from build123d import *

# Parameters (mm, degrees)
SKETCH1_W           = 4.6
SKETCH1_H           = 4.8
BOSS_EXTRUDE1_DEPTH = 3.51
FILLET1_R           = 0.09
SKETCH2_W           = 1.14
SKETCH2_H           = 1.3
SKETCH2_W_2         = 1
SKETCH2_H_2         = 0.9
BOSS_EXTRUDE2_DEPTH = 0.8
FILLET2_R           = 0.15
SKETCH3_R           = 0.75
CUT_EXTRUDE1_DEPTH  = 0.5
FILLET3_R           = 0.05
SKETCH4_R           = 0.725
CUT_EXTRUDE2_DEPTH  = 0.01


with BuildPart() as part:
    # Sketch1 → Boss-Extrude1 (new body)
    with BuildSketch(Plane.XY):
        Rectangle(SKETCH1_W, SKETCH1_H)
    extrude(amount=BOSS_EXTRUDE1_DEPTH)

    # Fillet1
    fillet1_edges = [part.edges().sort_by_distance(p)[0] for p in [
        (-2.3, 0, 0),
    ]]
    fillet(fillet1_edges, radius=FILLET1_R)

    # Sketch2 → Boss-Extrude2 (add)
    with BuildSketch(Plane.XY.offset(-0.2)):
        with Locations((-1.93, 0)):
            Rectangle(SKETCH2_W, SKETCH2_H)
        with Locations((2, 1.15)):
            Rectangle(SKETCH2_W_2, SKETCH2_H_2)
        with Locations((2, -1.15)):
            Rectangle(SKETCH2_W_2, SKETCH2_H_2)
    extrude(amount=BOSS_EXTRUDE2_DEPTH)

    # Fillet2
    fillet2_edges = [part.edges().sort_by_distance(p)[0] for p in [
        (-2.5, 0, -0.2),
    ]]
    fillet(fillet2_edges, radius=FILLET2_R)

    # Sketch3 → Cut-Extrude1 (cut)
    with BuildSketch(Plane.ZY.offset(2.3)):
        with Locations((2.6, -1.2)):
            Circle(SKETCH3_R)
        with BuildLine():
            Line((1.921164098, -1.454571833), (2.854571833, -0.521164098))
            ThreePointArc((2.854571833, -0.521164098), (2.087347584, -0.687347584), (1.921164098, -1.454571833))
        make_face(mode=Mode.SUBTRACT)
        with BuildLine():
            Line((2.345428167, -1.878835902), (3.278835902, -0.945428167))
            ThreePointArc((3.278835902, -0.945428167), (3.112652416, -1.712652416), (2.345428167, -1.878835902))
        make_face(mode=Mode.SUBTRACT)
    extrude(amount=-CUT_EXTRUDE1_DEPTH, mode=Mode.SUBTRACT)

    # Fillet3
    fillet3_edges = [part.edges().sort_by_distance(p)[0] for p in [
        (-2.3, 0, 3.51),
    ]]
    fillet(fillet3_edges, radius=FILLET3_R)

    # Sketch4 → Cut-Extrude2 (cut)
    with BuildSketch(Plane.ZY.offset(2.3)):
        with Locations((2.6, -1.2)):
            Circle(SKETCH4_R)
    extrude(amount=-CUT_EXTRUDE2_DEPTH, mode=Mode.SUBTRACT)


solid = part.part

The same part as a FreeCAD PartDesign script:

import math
import FreeCAD as App
import Part
import Sketcher
from FreeCAD import Vector
Q = App.Units.Quantity


def edges_at(feature, points):
    """Names of the edges that pass closest to the given points."""
    edges = feature.Shape.Edges
    near = lambda p: min(range(len(edges)), key=lambda i: edges[i].distToShape(Part.Vertex(*p))[0])
    return sorted({f"Edge{near(p) + 1}" for p in points})


def add_polygon(sketch, points):
    """Adds a closed chain of lines whose ends are joined by coincident constraints."""
    first, n = sketch.GeometryCount, len(points)
    for a, b in zip(points, points[1:] + points[:1]):
        sketch.addGeometry(Part.LineSegment(App.Vector(*a, 0), App.Vector(*b, 0)), False)
    for i in range(n):
        sketch.addConstraint(Sketcher.Constraint("Coincident", first + i, 2, first + (i + 1) % n, 1))

doc = App.newDocument("Part")
body = doc.addObject("PartDesign::Body", "Body")

# Sketch on XY plane
sketch1 = body.newObject("Sketcher::SketchObject", "Sketch")
sketch1.AttachmentSupport = (doc.getObject("XY_Plane"), [""])
sketch1.MapMode = "FlatFace"
add_polygon(sketch1, [(-2.3, 2.4), (-2.3, -2.4), (2.3, -2.4), (2.3, 2.4)])  # lines 0-3
sketch1.addConstraint(Sketcher.Constraint("Vertical", 0))
sketch1.addConstraint(Sketcher.Constraint("Horizontal", 1))
sketch1.addConstraint(Sketcher.Constraint("Vertical", 2))
sketch1.addConstraint(Sketcher.Constraint("Horizontal", 3))
sketch1.addConstraint(Sketcher.Constraint("Symmetric", 0, 2, 2, 2, -1, 1))
sketch1.addConstraint(Sketcher.Constraint("DistanceX", 1, 1, 1, 2, 4.6))
sketch1.addConstraint(Sketcher.Constraint("DistanceY", 0, 2, 0, 1, 4.8))
pad1 = body.newObject("PartDesign::Pad", "Pad")
pad1.Profile = sketch1
pad1.Length = 3.51
doc.recompute()

fillet = body.newObject("PartDesign::Fillet", "Fillet")
fillet.Base = (pad1, edges_at(pad1, [(-2.3, 0, 0)]))
fillet.Radius = 0.09

# Sketch on XY plane
sketch2 = body.newObject("Sketcher::SketchObject", "Sketch001")
sketch2.AttachmentSupport = (doc.getObject("XY_Plane"), [""])
sketch2.MapMode = "FlatFace"
sketch2.AttachmentOffset = App.Placement(Vector(0, 0, -0.2), App.Rotation())
add_polygon(sketch2, [(-2.5, 0.7), (-2.5, -0.7), (-1.4, -0.7), (-1.4, 0.7)])  # lines 0-3
add_polygon(sketch2, [(1.5, 1.6), (1.5, 0.7), (2.5, 0.7), (2.5, 1.6)])  # lines 4-7
add_polygon(sketch2, [(1.5, -0.7), (1.5, -1.6), (2.5, -1.6), (2.5, -0.7)])  # lines 8-11
sketch2.addConstraint(Sketcher.Constraint("Vertical", 0))
sketch2.addConstraint(Sketcher.Constraint("Horizontal", 1))
sketch2.addConstraint(Sketcher.Constraint("Vertical", 2))
sketch2.addConstraint(Sketcher.Constraint("Horizontal", 3))
sketch2.addConstraint(Sketcher.Constraint("Vertical", 4))
sketch2.addConstraint(Sketcher.Constraint("Horizontal", 5))
sketch2.addConstraint(Sketcher.Constraint("Vertical", 6))
sketch2.addConstraint(Sketcher.Constraint("Horizontal", 7))
sketch2.addConstraint(Sketcher.Constraint("Vertical", 8))
sketch2.addConstraint(Sketcher.Constraint("Horizontal", 9))
sketch2.addConstraint(Sketcher.Constraint("Vertical", 10))
sketch2.addConstraint(Sketcher.Constraint("Horizontal", 11))
sketch2.addConstraint(Sketcher.Constraint("Symmetric", 7, 2, 8, 2, -1))
sketch2.addConstraint(Sketcher.Constraint("Symmetric", 5, 2, 10, 2, -1))
sketch2.addConstraint(Sketcher.Constraint("DistanceX", 5, 1, 5, 2, 1.0))
sketch2.addConstraint(Sketcher.Constraint("DistanceY", 0, 2, 0, 1, 1.3))
sketch2.addConstraint(Sketcher.Constraint("DistanceY", 4, 2, 4, 1, 0.9))
sketch2.addConstraint(Sketcher.Constraint("DistanceX", 3, 2, 4, 2, 4.0))
sketch2.addConstraint(Sketcher.Constraint("DistanceX", 1, 1, 1, 2, 1.14))
sketch2.addConstraint(Sketcher.Constraint("DistanceX", 0, 2, -1, 1, 2.5))
sketch2.addConstraint(Sketcher.Constraint("DistanceY", -1, 1, 4, 2, 0.7))
sketch2.addConstraint(Sketcher.Constraint("DistanceY", 0, 2, -1, 1, 0.65))
pad2 = body.newObject("PartDesign::Pad", "Pad001")
pad2.Profile = sketch2
pad2.Length = 0.8
doc.recompute()

fillet2 = body.newObject("PartDesign::Fillet", "Fillet001")
fillet2.Base = (pad2, edges_at(pad2, [(-2.5, 0, -0.2)]))
fillet2.Radius = 0.15

# Sketch on YZ plane
sketch3 = body.newObject("Sketcher::SketchObject", "Sketch002")
sketch3.AttachmentSupport = (doc.getObject("YZ_Plane"), [""])
sketch3.MapMode = "FlatFace"
sketch3.AttachmentOffset = App.Placement(Vector(0, 0, -2.3), App.Rotation())
sketch3.addGeometry(Part.Circle(Vector(-1.2, 2.6, 0), Vector(0, 0, 1), 0.8), False)
sketch3.addGeometry(Part.ArcOfCircle(Part.Circle(Vector(-1.2, 2.6, 0), Vector(0, 0, 1), 0.7), math.radians(69), math.radians(201)), False)
sketch3.addGeometry(Part.LineSegment(Vector(-1.9, 2.3, 0), Vector(-0.9, 3.3, 0)), False)
sketch3.addGeometry(Part.LineSegment(Vector(-0.5, 2.9, 0), Vector(-1.5, 1.9, 0)), False)
sketch3.addGeometry(Part.ArcOfCircle(Part.Circle(Vector(-1.2, 2.6, 0), Vector(0, 0, 1), 0.7), math.radians(-111), math.radians(21)), False)
sketch3.addConstraint(Sketcher.Constraint("Coincident", 1, 1, 2, 2))
sketch3.addConstraint(Sketcher.Constraint("Coincident", 2, 1, 1, 2))
sketch3.addConstraint(Sketcher.Constraint("Coincident", 3, 1, 4, 2))
sketch3.addConstraint(Sketcher.Constraint("Coincident", 4, 1, 3, 2))
sketch3.addConstraint(Sketcher.Constraint("Coincident", 1, 3, 0, 3))
sketch3.addConstraint(Sketcher.Constraint("Coincident", 4, 3, 0, 3))
sketch3.addConstraint(Sketcher.Constraint("Equal", 1, 4))
sketch3.addConstraint(Sketcher.Constraint("Parallel", 2, 3))
sketch3.addConstraint(Sketcher.Constraint("Equal", 2, 3))
sketch3.addConstraint(Sketcher.Constraint("Diameter", 0, 1.5))
sketch3.addConstraint(Sketcher.Constraint("Angle", 2, Q("45 deg")))
sketch3.addConstraint(Sketcher.Constraint("Radius", 1, 0.725))
sketch3.addConstraint(Sketcher.Constraint("DistanceX", 0, 3, -1, 1, 1.2))
sketch3.addConstraint(Sketcher.Constraint("DistanceY", -1, 1, 0, 3, 2.6))
sketch3.addConstraint(Sketcher.Constraint("DistanceX", 1, 1, -1, 1, 0.945428))
pocket1 = body.newObject("PartDesign::Pocket", "Pocket")
pocket1.Profile = sketch3
pocket1.Length = 0.5
pocket1.Reversed = True
doc.recompute()

fillet3 = body.newObject("PartDesign::Fillet", "Fillet002")
fillet3.Base = (pocket1, edges_at(pocket1, [(-2.3, 0, 3.51)]))
fillet3.Radius = 0.05

# Sketch on YZ plane
sketch4 = body.newObject("Sketcher::SketchObject", "Sketch003")
sketch4.AttachmentSupport = (doc.getObject("YZ_Plane"), [""])
sketch4.MapMode = "FlatFace"
sketch4.AttachmentOffset = App.Placement(Vector(0, 0, -2.3), App.Rotation())
sketch4.addGeometry(Part.Circle(Vector(-1.2, 2.6, 0), Vector(0, 0, 1), 0.7), False)
sketch4.addConstraint(Sketcher.Constraint("Diameter", 0, 1.45))
sketch4.addConstraint(Sketcher.Constraint("DistanceX", 0, 3, -1, 1, 1.2))
sketch4.addConstraint(Sketcher.Constraint("DistanceY", -1, 1, 0, 3, 2.6))
pocket2 = body.newObject("PartDesign::Pocket", "Pocket001")
pocket2.Profile = sketch4
pocket2.Length = 0.01
pocket2.Reversed = True

doc.recompute()
